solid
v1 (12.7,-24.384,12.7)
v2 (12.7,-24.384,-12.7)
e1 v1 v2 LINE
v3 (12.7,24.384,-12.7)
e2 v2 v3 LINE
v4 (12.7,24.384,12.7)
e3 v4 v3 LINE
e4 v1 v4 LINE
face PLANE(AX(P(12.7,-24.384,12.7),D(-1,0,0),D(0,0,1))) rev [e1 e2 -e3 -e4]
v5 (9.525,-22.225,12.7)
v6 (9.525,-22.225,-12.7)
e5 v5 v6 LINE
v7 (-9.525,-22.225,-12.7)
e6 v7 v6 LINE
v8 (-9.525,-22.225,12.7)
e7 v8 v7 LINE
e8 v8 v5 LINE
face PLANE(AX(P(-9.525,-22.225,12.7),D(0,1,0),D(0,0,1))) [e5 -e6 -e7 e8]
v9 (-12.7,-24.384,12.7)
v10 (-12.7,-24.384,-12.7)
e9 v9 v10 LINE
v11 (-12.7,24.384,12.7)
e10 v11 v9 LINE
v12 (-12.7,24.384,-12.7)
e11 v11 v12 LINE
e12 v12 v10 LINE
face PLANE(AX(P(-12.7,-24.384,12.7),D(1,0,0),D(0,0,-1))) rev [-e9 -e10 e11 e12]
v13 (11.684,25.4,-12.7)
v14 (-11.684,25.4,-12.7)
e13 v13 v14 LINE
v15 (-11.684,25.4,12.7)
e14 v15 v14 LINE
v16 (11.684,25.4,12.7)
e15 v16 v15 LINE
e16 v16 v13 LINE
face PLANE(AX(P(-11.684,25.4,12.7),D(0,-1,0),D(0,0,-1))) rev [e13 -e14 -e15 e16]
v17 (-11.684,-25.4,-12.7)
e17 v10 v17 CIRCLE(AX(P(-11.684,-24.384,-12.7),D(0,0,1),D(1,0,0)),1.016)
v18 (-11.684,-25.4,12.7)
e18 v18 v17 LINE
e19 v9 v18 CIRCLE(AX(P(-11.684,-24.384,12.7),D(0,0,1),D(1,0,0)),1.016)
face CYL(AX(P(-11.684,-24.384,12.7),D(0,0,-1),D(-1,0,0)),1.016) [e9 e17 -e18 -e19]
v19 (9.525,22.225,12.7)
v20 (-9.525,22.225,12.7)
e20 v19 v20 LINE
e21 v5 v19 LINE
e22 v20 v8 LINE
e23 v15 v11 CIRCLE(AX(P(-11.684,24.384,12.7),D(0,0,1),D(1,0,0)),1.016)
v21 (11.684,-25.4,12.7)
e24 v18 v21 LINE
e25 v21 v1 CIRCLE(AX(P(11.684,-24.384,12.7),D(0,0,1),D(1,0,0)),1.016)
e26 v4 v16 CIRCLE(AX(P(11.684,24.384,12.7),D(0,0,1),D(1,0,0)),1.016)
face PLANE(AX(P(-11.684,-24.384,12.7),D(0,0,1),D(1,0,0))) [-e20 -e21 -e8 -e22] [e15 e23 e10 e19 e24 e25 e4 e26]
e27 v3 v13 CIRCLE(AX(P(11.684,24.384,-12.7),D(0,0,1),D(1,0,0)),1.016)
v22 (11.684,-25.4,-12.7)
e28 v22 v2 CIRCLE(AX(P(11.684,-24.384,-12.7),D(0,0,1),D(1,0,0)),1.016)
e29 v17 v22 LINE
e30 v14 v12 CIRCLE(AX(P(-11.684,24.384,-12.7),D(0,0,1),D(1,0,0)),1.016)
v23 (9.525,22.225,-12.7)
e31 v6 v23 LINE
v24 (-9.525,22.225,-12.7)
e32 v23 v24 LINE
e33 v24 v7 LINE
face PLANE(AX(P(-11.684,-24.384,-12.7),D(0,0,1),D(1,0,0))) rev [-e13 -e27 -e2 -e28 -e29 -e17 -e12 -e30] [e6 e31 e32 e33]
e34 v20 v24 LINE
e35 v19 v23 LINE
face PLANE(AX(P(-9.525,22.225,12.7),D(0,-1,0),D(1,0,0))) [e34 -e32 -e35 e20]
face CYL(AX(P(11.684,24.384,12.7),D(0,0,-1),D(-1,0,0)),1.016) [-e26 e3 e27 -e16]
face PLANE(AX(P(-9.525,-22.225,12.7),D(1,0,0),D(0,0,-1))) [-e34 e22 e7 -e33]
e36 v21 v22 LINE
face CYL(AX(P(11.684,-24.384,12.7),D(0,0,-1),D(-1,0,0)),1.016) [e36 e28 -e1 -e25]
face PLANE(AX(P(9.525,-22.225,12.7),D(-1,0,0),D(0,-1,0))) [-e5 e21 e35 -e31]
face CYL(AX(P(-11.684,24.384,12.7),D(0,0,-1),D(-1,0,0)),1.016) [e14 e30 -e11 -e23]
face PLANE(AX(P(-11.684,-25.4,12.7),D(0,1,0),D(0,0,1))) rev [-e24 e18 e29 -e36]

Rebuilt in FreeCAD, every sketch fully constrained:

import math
import FreeCAD as App
import Part
import Sketcher
Q = App.Units.Quantity

doc = App.newDocument("Part")
body = doc.addObject("PartDesign::Body", "Body")

# Sketch on XY plane
sketch1 = body.newObject("Sketcher::SketchObject", "Sketch")
sketch1.AttachmentSupport = (doc.getObject("XY_Plane"), [""])
sketch1.MapMode = "FlatFace"
sketch1.addGeometry([
    Part.LineSegment(App.Vector(-11.684, -25.4, 0), App.Vector(11.684, -25.4, 0)),  # 0
    Part.ArcOfCircle(Part.Circle(App.Vector(11.684, -24.384, 0), App.Vector(0, 0, 1), 1.016), math.radians(-90), math.radians(0)),  # 1
    Part.LineSegment(App.Vector(12.7, -24.384, 0), App.Vector(12.7, 24.384, 0)),  # 2
    Part.ArcOfCircle(Part.Circle(App.Vector(11.684, 24.384, 0), App.Vector(0, 0, 1), 1.016), math.radians(0), math.radians(90)),  # 3
    Part.LineSegment(App.Vector(11.684, 25.4, 0), App.Vector(-11.684, 25.4, 0)),  # 4
    Part.ArcOfCircle(Part.Circle(App.Vector(-11.684, 24.384, 0), App.Vector(0, 0, 1), 1.016), math.radians(90), math.radians(180)),  # 5
    Part.LineSegment(App.Vector(-12.7, 24.384, 0), App.Vector(-12.7, -24.384, 0)),  # 6
    Part.ArcOfCircle(Part.Circle(App.Vector(-11.684, -24.384, 0), App.Vector(0, 0, 1), 1.016), math.radians(180), math.radians(270)),  # 7
    Part.LineSegment(App.Vector(9.525, -22.225, 0), App.Vector(-9.525, -22.225, 0)),  # 8
    Part.LineSegment(App.Vector(-9.525, -22.225, 0), App.Vector(-9.525, 22.225, 0)),  # 9
    Part.LineSegment(App.Vector(-9.525, 22.225, 0), App.Vector(9.525, 22.225, 0)),  # 10
    Part.LineSegment(App.Vector(9.525, 22.225, 0), App.Vector(9.525, -22.225, 0)),  # 11
], False)
sketch1.addConstraint([
    Sketcher.Constraint("Tangent", 0, 2, 1, 1),
    Sketcher.Constraint("Tangent", 1, 2, 2, 1),
    Sketcher.Constraint("Tangent", 2, 2, 3, 1),
    Sketcher.Constraint("Tangent", 3, 2, 4, 1),
    Sketcher.Constraint("Tangent", 4, 2, 5, 1),
    Sketcher.Constraint("Tangent", 5, 2, 6, 1),
    Sketcher.Constraint("Tangent", 6, 2, 7, 1),
    Sketcher.Constraint("Tangent", 7, 2, 0, 1),
    Sketcher.Constraint("Coincident", 8, 2, 9, 1),
    Sketcher.Constraint("Coincident", 9, 2, 10, 1),
    Sketcher.Constraint("Coincident", 10, 2, 11, 1),
    Sketcher.Constraint("Coincident", 11, 2, 8, 1),
    Sketcher.Constraint("Horizontal", 0),
    Sketcher.Constraint("Vertical", 2),
    Sketcher.Constraint("Horizontal", 4),
    Sketcher.Constraint("Vertical", 6),
    Sketcher.Constraint("Horizontal", 8),
    Sketcher.Constraint("Vertical", 9),
    Sketcher.Constraint("Horizontal", 10),
    Sketcher.Constraint("Vertical", 11),
    Sketcher.Constraint("Equal", 1, 3),
    Sketcher.Constraint("Equal", 3, 5),
    Sketcher.Constraint("Equal", 5, 7),
    Sketcher.Constraint("Symmetric", 1, 3, 5, 3, -1, 1),
    Sketcher.Constraint("Symmetric", 8, 2, 10, 2, -1, 1),
    Sketcher.Constraint("Radius", 1, Q("0.04 in")),
    Sketcher.Constraint("DistanceY", 0, 2, -1, 1, Q("1 in")),
    Sketcher.Constraint("DistanceX", 5, 2, 2, 2, Q("1 in")),
    Sketcher.Constraint("DistanceX", 8, 2, 8, 1, Q("0.75 in")),
    Sketcher.Constraint("DistanceY", 9, 1, 9, 2, Q("1.75 in")),
])
pad1 = body.newObject("PartDesign::Pad", "Pad")
pad1.Profile = sketch1
pad1.Length = Q("1 in")
pad1.Midplane = True

doc.recompute()
